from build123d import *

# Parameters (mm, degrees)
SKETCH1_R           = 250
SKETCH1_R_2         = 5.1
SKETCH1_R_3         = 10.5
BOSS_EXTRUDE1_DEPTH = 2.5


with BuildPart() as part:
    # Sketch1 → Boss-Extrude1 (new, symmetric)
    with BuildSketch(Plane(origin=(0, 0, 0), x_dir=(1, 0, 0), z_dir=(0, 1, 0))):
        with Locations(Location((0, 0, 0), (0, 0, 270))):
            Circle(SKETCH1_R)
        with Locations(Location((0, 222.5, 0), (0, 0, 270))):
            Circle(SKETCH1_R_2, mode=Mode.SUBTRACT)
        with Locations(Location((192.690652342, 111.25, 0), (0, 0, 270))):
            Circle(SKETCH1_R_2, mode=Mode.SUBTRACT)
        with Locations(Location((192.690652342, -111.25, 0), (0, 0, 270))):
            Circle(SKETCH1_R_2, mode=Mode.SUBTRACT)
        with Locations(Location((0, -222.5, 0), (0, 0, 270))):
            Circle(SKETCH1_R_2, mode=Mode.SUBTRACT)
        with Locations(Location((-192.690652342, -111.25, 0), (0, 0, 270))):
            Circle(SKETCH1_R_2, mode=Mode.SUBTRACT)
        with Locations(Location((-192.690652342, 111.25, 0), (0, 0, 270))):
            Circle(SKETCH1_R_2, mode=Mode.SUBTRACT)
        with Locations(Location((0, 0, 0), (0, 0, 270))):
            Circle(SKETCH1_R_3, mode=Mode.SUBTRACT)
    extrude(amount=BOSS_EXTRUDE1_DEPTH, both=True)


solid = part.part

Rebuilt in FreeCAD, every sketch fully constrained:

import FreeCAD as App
import Part
import Sketcher

V = App.Vector
Q = App.Units.Quantity

doc = App.newDocument("Part")
body = doc.addObject("PartDesign::Body", "Body")

# Sketch on XZ plane
sketch1 = doc.addObject("Sketcher::SketchObject", "Sketch")
body.addObject(sketch1)
sketch1.AttachmentSupport = (doc.XZ_Plane, [""])
sketch1.MapMode = "FlatFace"
sketch1.addGeometry([
    Part.Circle(V(0, 0, 0), V(0, 0, 1), 250),  # 0
    Part.Circle(V(-193, -111, 0), V(0, 0, 1), 5),  # 1
    Part.Circle(V(0, -222, 0), V(0, 0, 1), 5),  # 2
    Part.Circle(V(-193, 111, 0), V(0, 0, 1), 5),  # 3
    Part.Circle(V(193, -111, 0), V(0, 0, 1), 5),  # 4
    Part.Circle(V(0, 0, 0), V(0, 0, 1), 10),  # 5
    Part.Circle(V(0, 222, 0), V(0, 0, 1), 5),  # 6
    Part.Circle(V(193, 111, 0), V(0, 0, 1), 5),  # 7
], False)
sketch1.addConstraint([
    Sketcher.Constraint("Coincident", 0, 3, -1, 1),
    Sketcher.Constraint("Coincident", 5, 3, -1, 1),
    Sketcher.Constraint("Equal", 1, 2),
    Sketcher.Constraint("Equal", 2, 3),
    Sketcher.Constraint("Equal", 3, 4),
    Sketcher.Constraint("Equal", 4, 6),
    Sketcher.Constraint("Equal", 6, 7),
    Sketcher.Constraint("Symmetric", 3, 3, 4, 3, -1, 1),
    Sketcher.Constraint("Symmetric", 2, 3, 6, 3, -1, 1),
    Sketcher.Constraint("Symmetric", 1, 3, 7, 3, -1, 1),
    Sketcher.Constraint("Symmetric", 1, 3, 4, 3, -2),
    Sketcher.Constraint("PointOnObject", 2, 3, -2),
    Sketcher.Constraint("Diameter", 0, Q("500 mm")),
    Sketcher.Constraint("Diameter", 5, Q("21 mm")),
    Sketcher.Constraint("Diameter", 1, Q("10.2 mm")),
    Sketcher.Constraint("DistanceY", 2, 3, -1, 1, Q("222.5 mm")),
    Sketcher.Constraint("DistanceY", 1, 3, 3, 3, Q("222.5 mm")),
    Sketcher.Constraint("DistanceX", 1, 3, -1, 1, Q("192.690652 mm")),
])
pad1 = doc.addObject("PartDesign::Pad", "Pad")
body.addObject(pad1)
pad1.Profile = sketch1
pad1.Length = 5
pad1.Midplane = True

doc.recompute()
